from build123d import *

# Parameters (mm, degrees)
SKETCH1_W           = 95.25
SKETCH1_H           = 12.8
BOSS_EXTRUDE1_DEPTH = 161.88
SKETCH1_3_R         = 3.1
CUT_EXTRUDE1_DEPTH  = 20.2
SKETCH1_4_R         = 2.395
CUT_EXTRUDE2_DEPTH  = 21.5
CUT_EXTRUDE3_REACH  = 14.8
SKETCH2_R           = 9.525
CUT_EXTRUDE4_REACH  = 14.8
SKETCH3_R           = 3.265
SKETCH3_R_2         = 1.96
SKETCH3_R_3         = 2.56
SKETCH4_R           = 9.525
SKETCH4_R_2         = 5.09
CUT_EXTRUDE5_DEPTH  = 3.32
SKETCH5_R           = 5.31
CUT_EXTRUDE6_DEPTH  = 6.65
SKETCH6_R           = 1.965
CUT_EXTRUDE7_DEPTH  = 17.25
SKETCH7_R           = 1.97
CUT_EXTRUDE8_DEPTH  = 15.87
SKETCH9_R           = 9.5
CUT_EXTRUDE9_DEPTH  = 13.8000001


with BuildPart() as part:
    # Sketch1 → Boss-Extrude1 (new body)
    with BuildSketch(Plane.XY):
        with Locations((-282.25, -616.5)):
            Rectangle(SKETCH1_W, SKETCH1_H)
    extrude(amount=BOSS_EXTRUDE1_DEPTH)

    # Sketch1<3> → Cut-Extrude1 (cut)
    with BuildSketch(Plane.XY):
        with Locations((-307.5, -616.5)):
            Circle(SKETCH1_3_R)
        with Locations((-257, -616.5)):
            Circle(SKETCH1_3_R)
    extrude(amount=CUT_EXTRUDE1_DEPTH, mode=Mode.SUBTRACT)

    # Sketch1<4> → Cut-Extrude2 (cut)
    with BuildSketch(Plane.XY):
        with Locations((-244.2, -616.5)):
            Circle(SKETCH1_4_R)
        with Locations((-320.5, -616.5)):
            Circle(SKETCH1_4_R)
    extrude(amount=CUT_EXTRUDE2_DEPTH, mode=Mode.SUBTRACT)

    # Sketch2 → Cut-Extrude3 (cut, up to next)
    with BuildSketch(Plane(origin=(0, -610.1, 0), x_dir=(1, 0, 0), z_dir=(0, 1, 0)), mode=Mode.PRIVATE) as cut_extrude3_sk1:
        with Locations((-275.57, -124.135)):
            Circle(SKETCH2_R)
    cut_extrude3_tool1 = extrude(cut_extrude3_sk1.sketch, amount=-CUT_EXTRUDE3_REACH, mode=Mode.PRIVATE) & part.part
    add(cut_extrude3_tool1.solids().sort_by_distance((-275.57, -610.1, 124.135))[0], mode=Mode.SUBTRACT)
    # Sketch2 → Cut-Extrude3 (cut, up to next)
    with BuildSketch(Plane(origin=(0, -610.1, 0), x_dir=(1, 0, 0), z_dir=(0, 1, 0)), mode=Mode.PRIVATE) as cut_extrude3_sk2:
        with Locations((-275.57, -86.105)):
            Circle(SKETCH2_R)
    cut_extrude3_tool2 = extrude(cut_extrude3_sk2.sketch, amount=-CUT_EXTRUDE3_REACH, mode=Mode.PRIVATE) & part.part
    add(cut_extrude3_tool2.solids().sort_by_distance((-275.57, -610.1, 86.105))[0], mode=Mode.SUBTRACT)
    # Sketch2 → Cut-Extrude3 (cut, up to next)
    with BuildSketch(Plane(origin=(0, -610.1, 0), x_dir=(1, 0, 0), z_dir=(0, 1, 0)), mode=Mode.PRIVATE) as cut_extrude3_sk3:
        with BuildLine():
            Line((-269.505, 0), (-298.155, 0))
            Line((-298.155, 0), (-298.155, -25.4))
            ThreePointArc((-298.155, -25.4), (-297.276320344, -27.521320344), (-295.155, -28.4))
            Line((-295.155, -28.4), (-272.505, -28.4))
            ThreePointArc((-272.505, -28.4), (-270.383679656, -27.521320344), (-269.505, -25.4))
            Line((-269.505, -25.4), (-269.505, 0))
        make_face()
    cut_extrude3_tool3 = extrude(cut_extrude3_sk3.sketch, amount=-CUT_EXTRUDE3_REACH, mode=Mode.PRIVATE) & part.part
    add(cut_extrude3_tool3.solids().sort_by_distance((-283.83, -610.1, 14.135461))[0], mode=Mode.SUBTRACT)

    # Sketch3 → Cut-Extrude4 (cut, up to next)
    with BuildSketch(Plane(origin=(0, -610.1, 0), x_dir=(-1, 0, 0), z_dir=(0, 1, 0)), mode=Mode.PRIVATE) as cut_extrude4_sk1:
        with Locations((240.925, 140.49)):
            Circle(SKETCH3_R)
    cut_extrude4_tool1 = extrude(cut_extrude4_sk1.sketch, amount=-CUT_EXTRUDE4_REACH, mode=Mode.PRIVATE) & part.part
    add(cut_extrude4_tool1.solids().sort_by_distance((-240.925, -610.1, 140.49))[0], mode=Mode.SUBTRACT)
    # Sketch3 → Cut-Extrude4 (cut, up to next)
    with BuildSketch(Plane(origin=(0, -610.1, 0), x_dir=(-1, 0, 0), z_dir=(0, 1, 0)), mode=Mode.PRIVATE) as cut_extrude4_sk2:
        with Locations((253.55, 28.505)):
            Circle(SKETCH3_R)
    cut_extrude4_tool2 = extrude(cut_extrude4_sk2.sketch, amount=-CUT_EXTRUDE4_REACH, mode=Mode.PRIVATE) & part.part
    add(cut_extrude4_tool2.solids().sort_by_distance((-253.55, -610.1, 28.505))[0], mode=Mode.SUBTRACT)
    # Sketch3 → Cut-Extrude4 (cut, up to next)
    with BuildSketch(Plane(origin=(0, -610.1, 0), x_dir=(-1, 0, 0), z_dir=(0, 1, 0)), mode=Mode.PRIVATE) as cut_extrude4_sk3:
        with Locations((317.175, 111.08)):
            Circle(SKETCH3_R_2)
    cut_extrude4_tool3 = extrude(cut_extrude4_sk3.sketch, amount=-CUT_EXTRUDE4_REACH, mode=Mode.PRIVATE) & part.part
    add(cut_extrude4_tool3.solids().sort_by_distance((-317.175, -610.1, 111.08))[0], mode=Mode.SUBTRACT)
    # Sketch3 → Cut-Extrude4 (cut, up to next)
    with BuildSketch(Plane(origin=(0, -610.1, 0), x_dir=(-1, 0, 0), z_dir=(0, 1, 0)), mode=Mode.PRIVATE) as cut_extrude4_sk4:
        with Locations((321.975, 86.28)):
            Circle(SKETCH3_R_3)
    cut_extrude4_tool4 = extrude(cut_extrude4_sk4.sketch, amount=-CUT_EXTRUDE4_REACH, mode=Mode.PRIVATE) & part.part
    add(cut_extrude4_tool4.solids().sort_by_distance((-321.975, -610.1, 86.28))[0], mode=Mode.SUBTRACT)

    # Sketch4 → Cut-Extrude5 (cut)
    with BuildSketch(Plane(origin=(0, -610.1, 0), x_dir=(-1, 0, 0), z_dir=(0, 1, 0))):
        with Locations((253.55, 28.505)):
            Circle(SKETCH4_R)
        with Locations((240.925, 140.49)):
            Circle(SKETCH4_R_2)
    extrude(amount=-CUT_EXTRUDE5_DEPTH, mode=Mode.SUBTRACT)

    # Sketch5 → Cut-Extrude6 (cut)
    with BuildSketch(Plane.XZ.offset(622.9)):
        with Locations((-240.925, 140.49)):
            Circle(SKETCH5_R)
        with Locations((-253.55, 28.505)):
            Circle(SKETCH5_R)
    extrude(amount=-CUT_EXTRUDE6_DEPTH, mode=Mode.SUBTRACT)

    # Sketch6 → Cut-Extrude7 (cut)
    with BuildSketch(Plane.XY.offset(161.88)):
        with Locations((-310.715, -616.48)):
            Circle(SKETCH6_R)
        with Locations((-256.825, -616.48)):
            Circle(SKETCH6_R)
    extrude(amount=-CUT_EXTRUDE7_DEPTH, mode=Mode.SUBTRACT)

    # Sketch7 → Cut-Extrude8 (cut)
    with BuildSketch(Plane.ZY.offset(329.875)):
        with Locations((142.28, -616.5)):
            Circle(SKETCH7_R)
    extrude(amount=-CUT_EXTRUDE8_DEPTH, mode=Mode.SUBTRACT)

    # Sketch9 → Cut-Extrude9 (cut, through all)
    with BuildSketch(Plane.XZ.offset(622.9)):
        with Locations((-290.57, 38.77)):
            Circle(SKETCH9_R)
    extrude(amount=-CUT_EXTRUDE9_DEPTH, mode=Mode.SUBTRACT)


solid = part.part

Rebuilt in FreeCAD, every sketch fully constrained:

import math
import FreeCAD as App
import Part
import Sketcher


def add_polygon(sketch, points):
    """Adds a closed chain of lines whose ends are joined by coincident constraints."""
    first, n = sketch.GeometryCount, len(points)
    for a, b in zip(points, points[1:] + points[:1]):
        sketch.addGeometry(Part.LineSegment(App.Vector(*a, 0), App.Vector(*b, 0)), False)
    for i in range(n):
        sketch.addConstraint(Sketcher.Constraint("Coincident", first + i, 2, first + (i + 1) % n, 1))

doc = App.newDocument("Part")
body = doc.addObject("PartDesign::Body", "Body")

# Sketch on XY plane
sketch1 = body.newObject("Sketcher::SketchObject", "Sketch")
sketch1.AttachmentSupport = (doc.getObject("XY_Plane"), [""])
sketch1.MapMode = "FlatFace"
add_polygon(sketch1, [(-330, -610), (-330, -623), (-235, -623), (-235, -610)])  # lines 0-3
sketch1.addConstraint(Sketcher.Constraint("Vertical", 0))
sketch1.addConstraint(Sketcher.Constraint("Horizontal", 1))
sketch1.addConstraint(Sketcher.Constraint("Vertical", 2))
sketch1.addConstraint(Sketcher.Constraint("Horizontal", 3))
sketch1.addConstraint(Sketcher.Constraint("DistanceY", 0, 2, 0, 1, 12.8))
sketch1.addConstraint(Sketcher.Constraint("DistanceX", 1, 1, 1, 2, 95.25))
sketch1.addConstraint(Sketcher.Constraint("DistanceY", 0, 2, -1, 1, 622.9))
sketch1.addConstraint(Sketcher.Constraint("DistanceX", 0, 2, -1, 1, 329.875))
pad1 = body.newObject("PartDesign::Pad", "Pad")
pad1.Profile = sketch1
pad1.Length = 161.88

# Sketch on XY plane
sketch2 = body.newObject("Sketcher::SketchObject", "Sketch001")
sketch2.AttachmentSupport = (doc.getObject("XY_Plane"), [""])
sketch2.MapMode = "FlatFace"
sketch2.addGeometry(Part.Circle(App.Vector(-307.5, -616.5, 0), App.Vector(0, 0, 1), 3.1), False)
sketch2.addGeometry(Part.Circle(App.Vector(-257, -616.5, 0), App.Vector(0, 0, 1), 3.1), False)
sketch2.addConstraint(Sketcher.Constraint("Equal", 0, 1))
sketch2.addConstraint(Sketcher.Constraint("Horizontal", 0, 3, 1, 3))
sketch2.addConstraint(Sketcher.Constraint("Diameter", 0, 6.2))
sketch2.addConstraint(Sketcher.Constraint("DistanceX", 1, 3, -1, 1, 257.0))
sketch2.addConstraint(Sketcher.Constraint("DistanceX", 0, 3, -1, 1, 307.5))
sketch2.addConstraint(Sketcher.Constraint("DistanceY", 0, 3, -1, 1, 616.5))
pocket1 = body.newObject("PartDesign::Pocket", "Pocket")
pocket1.Profile = sketch2
pocket1.Length = 20.2
pocket1.Reversed = True

# Sketch on XY plane
sketch3 = body.newObject("Sketcher::SketchObject", "Sketch002")
sketch3.AttachmentSupport = (doc.getObject("XY_Plane"), [""])
sketch3.MapMode = "FlatFace"
sketch3.addGeometry(Part.Circle(App.Vector(-244.2, -616.5, 0), App.Vector(0, 0, 1), 2.4), False)
sketch3.addGeometry(Part.Circle(App.Vector(-320.5, -616.5, 0), App.Vector(0, 0, 1), 2.4), False)
sketch3.addConstraint(Sketcher.Constraint("Equal", 0, 1))
sketch3.addConstraint(Sketcher.Constraint("Horizontal", 0, 3, 1, 3))
sketch3.addConstraint(Sketcher.Constraint("Diameter", 0, 4.79))
sketch3.addConstraint(Sketcher.Constraint("DistanceX", 0, 3, -1, 1, 244.2))
sketch3.addConstraint(Sketcher.Constraint("DistanceY", 0, 3, -1, 1, 616.5))
sketch3.addConstraint(Sketcher.Constraint("DistanceX", 1, 3, -1, 1, 320.5))
pocket2 = body.newObject("PartDesign::Pocket", "Pocket001")
pocket2.Profile = sketch3
pocket2.Length = 21.5
pocket2.Reversed = True

# Sketch on XZ plane
sketch4 = body.newObject("Sketcher::SketchObject", "Sketch003")
sketch4.AttachmentSupport = (doc.getObject("XZ_Plane"), [""])
sketch4.MapMode = "FlatFace"
sketch4.AttachmentOffset = App.Placement(App.Vector(0, 0, 610.1), App.Rotation())
sketch4.addGeometry(Part.Circle(App.Vector(-276, 124, 0), App.Vector(0, 0, 1), 10), False)
sketch4.addConstraint(Sketcher.Constraint("Diameter", 0, 19.05))
sketch4.addConstraint(Sketcher.Constraint("DistanceX", 0, 3, -1, 1, 275.57))
sketch4.addConstraint(Sketcher.Constraint("DistanceY", -1, 1, 0, 3, 124.135))
pocket3 = body.newObject("PartDesign::Pocket", "Pocket002")
pocket3.Profile = sketch4
pocket3.Type = "UpToFirst"
pocket3.Reversed = True

# Sketch on XZ plane
sketch5 = body.newObject("Sketcher::SketchObject", "Sketch004")
sketch5.AttachmentSupport = (doc.getObject("XZ_Plane"), [""])
sketch5.MapMode = "FlatFace"
sketch5.AttachmentOffset = App.Placement(App.Vector(0, 0, 610.1), App.Rotation())
sketch5.addGeometry(Part.Circle(App.Vector(-276, 86, 0), App.Vector(0, 0, 1), 10), False)
sketch5.addConstraint(Sketcher.Constraint("Diameter", 0, 19.05))
sketch5.addConstraint(Sketcher.Constraint("DistanceX", 0, 3, -1, 1, 275.57))
sketch5.addConstraint(Sketcher.Constraint("DistanceY", -1, 1, 0, 3, 86.105))
pocket4 = body.newObject("PartDesign::Pocket", "Pocket003")
pocket4.Profile = sketch5
pocket4.Type = "UpToFirst"
pocket4.Reversed = True

# Sketch on XZ plane
sketch6 = body.newObject("Sketcher::SketchObject", "Sketch005")
sketch6.AttachmentSupport = (doc.getObject("XZ_Plane"), [""])
sketch6.MapMode = "FlatFace"
sketch6.AttachmentOffset = App.Placement(App.Vector(0, 0, 610.1), App.Rotation())
sketch6.addGeometry(Part.LineSegment(App.Vector(-269.5, 0, 0), App.Vector(-298.2, 0, 0)), False)
sketch6.addGeometry(Part.LineSegment(App.Vector(-298.2, 0, 0), App.Vector(-298.2, 25.4, 0)), False)
sketch6.addGeometry(Part.ArcOfCircle(Part.Circle(App.Vector(-295.2, 25.4, 0), App.Vector(0, 0, 1), 3), math.radians(90), math.radians(180)), False)
sketch6.addGeometry(Part.LineSegment(App.Vector(-295.2, 28.4, 0), App.Vector(-272.5, 28.4, 0)), False)
sketch6.addGeometry(Part.ArcOfCircle(Part.Circle(App.Vector(-272.5, 25.4, 0), App.Vector(0, 0, 1), 3), math.radians(0), math.radians(90)), False)
sketch6.addGeometry(Part.LineSegment(App.Vector(-269.5, 25.4, 0), App.Vector(-269.5, 0, 0)), False)
sketch6.addConstraint(Sketcher.Constraint("Coincident", 0, 2, 1, 1))
sketch6.addConstraint(Sketcher.Constraint("Tangent", 1, 2, 2, 2))
sketch6.addConstraint(Sketcher.Constraint("Tangent", 2, 1, 3, 1))
sketch6.addConstraint(Sketcher.Constraint("Tangent", 3, 2, 4, 2))
sketch6.addConstraint(Sketcher.Constraint("Tangent", 4, 1, 5, 1))
sketch6.addConstraint(Sketcher.Constraint("Coincident", 5, 2, 0, 1))
sketch6.addConstraint(Sketcher.Constraint("Horizontal", 0))
sketch6.addConstraint(Sketcher.Constraint("Vertical", 1))
sketch6.addConstraint(Sketcher.Constraint("Horizontal", 3))
sketch6.addConstraint(Sketcher.Constraint("Vertical", 5))
sketch6.addConstraint(Sketcher.Constraint("Equal", 2, 4))
sketch6.addConstraint(Sketcher.Constraint("PointOnObject", 0, 2, -1))
sketch6.addConstraint(Sketcher.Constraint("Radius", 2, 3.0))
sketch6.addConstraint(Sketcher.Constraint("DistanceY", 1, 1, 1, 2, 25.4))
sketch6.addConstraint(Sketcher.Constraint("DistanceX", 0, 2, 0, 1, 28.65))
sketch6.addConstraint(Sketcher.Constraint("DistanceX", 2, 3, -1, 1, 295.155))
pocket5 = body.newObject("PartDesign::Pocket", "Pocket004")
pocket5.Profile = sketch6
pocket5.Type = "UpToFirst"
pocket5.Reversed = True

# Sketch on XZ plane
sketch7 = body.newObject("Sketcher::SketchObject", "Sketch006")
sketch7.AttachmentSupport = (doc.getObject("XZ_Plane"), [""])
sketch7.MapMode = "FlatFace"
sketch7.AttachmentOffset = App.Placement(App.Vector(0, 0, 610.1), App.Rotation())
sketch7.addGeometry(Part.Circle(App.Vector(-240.9, 140.5, 0), App.Vector(0, 0, 1), 3.3), False)
sketch7.addConstraint(Sketcher.Constraint("Diameter", 0, 6.53))
sketch7.addConstraint(Sketcher.Constraint("DistanceY", -1, 1, 0, 3, 140.49))
sketch7.addConstraint(Sketcher.Constraint("DistanceX", 0, 3, -1, 1, 240.925))
pocket6 = body.newObject("PartDesign::Pocket", "Pocket005")
pocket6.Profile = sketch7
pocket6.Type = "UpToFirst"
pocket6.Reversed = True

# Sketch on XZ plane
sketch8 = body.newObject("Sketcher::SketchObject", "Sketch007")
sketch8.AttachmentSupport = (doc.getObject("XZ_Plane"), [""])
sketch8.MapMode = "FlatFace"
sketch8.AttachmentOffset = App.Placement(App.Vector(0, 0, 610.1), App.Rotation())
sketch8.addGeometry(Part.Circle(App.Vector(-253.6, 28.5, 0), App.Vector(0, 0, 1), 3.3), False)
sketch8.addConstraint(Sketcher.Constraint("Diameter", 0, 6.53))
sketch8.addConstraint(Sketcher.Constraint("DistanceX", 0, 3, -1, 1, 253.55))
sketch8.addConstraint(Sketcher.Constraint("DistanceY", -1, 1, 0, 3, 28.505))
pocket7 = body.newObject("PartDesign::Pocket", "Pocket006")
pocket7.Profile = sketch8
pocket7.Type = "UpToFirst"
pocket7.Reversed = True

# Sketch on XZ plane
sketch9 = body.newObject("Sketcher::SketchObject", "Sketch008")
sketch9.AttachmentSupport = (doc.getObject("XZ_Plane"), [""])
sketch9.MapMode = "FlatFace"
sketch9.AttachmentOffset = App.Placement(App.Vector(0, 0, 610.1), App.Rotation())
sketch9.addGeometry(Part.Circle(App.Vector(-317.2, 111.1, 0), App.Vector(0, 0, 1), 2), False)
sketch9.addConstraint(Sketcher.Constraint("Diameter", 0, 3.92))
sketch9.addConstraint(Sketcher.Constraint("DistanceY", -1, 1, 0, 3, 111.08))
sketch9.addConstraint(Sketcher.Constraint("DistanceX", 0, 3, -1, 1, 317.175))
pocket8 = body.newObject("PartDesign::Pocket", "Pocket007")
pocket8.Profile = sketch9
pocket8.Type = "UpToFirst"
pocket8.Reversed = True

# Sketch on XZ plane
sketch10 = body.newObject("Sketcher::SketchObject", "Sketch009")
sketch10.AttachmentSupport = (doc.getObject("XZ_Plane"), [""])
sketch10.MapMode = "FlatFace"
sketch10.AttachmentOffset = App.Placement(App.Vector(0, 0, 610.1), App.Rotation())
sketch10.addGeometry(Part.Circle(App.Vector(-322, 86.3, 0), App.Vector(0, 0, 1), 2.6), False)
sketch10.addConstraint(Sketcher.Constraint("Diameter", 0, 5.12))
sketch10.addConstraint(Sketcher.Constraint("DistanceY", -1, 1, 0, 3, 86.28))
sketch10.addConstraint(Sketcher.Constraint("DistanceX", 0, 3, -1, 1, 321.975))
pocket9 = body.newObject("PartDesign::Pocket", "Pocket008")
pocket9.Profile = sketch10
pocket9.Type = "UpToFirst"
pocket9.Reversed = True

# Sketch on XZ plane
sketch11 = body.newObject("Sketcher::SketchObject", "Sketch010")
sketch11.AttachmentSupport = (doc.getObject("XZ_Plane"), [""])
sketch11.MapMode = "FlatFace"
sketch11.AttachmentOffset = App.Placement(App.Vector(0, 0, 610.1), App.Rotation())
sketch11.addGeometry(Part.Circle(App.Vector(-254, 29, 0), App.Vector(0, 0, 1), 10), False)
sketch11.addGeometry(Part.Circle(App.Vector(-241, 140, 0), App.Vector(0, 0, 1), 5), False)
sketch11.addConstraint(Sketcher.Constraint("Diameter", 0, 19.05))
sketch11.addConstraint(Sketcher.Constraint("Diameter", 1, 10.18))
sketch11.addConstraint(Sketcher.Constraint("DistanceX", 0, 3, -1, 1, 253.55))
sketch11.addConstraint(Sketcher.Constraint("DistanceY", -1, 1, 1, 3, 140.49))
sketch11.addConstraint(Sketcher.Constraint("DistanceY", -1, 1, 0, 3, 28.505))
sketch11.addConstraint(Sketcher.Constraint("DistanceX", 1, 3, -1, 1, 240.925))
pocket10 = body.newObject("PartDesign::Pocket", "Pocket009")
pocket10.Profile = sketch11
pocket10.Length = 3.32
pocket10.Reversed = True

# Sketch on XZ plane
sketch12 = body.newObject("Sketcher::SketchObject", "Sketch011")
sketch12.AttachmentSupport = (doc.getObject("XZ_Plane"), [""])
sketch12.MapMode = "FlatFace"
sketch12.AttachmentOffset = App.Placement(App.Vector(0, 0, 622.9), App.Rotation())
sketch12.addGeometry(Part.Circle(App.Vector(-241, 140, 0), App.Vector(0, 0, 1), 5), False)
sketch12.addGeometry(Part.Circle(App.Vector(-254, 29, 0), App.Vector(0, 0, 1), 5), False)
sketch12.addConstraint(Sketcher.Constraint("Equal", 0, 1))
sketch12.addConstraint(Sketcher.Constraint("Diameter", 0, 10.62))
sketch12.addConstraint(Sketcher.Constraint("DistanceY", -1, 1, 0, 3, 140.49))
sketch12.addConstraint(Sketcher.Constraint("DistanceX", 1, 3, -1, 1, 253.55))
sketch12.addConstraint(Sketcher.Constraint("DistanceX", 0, 3, -1, 1, 240.925))
sketch12.addConstraint(Sketcher.Constraint("DistanceY", -1, 1, 1, 3, 28.505))
pocket11 = body.newObject("PartDesign::Pocket", "Pocket010")
pocket11.Profile = sketch12
pocket11.Length = 6.65

# Sketch on XY plane
sketch13 = body.newObject("Sketcher::SketchObject", "Sketch012")
sketch13.AttachmentSupport = (doc.getObject("XY_Plane"), [""])
sketch13.MapMode = "FlatFace"
sketch13.AttachmentOffset = App.Placement(App.Vector(0, 0, 161.88), App.Rotation())
sketch13.addGeometry(Part.Circle(App.Vector(-310.7, -616.5, 0), App.Vector(0, 0, 1), 2), False)
sketch13.addGeometry(Part.Circle(App.Vector(-256.8, -616.5, 0), App.Vector(0, 0, 1), 2), False)
sketch13.addConstraint(Sketcher.Constraint("Equal", 0, 1))
sketch13.addConstraint(Sketcher.Constraint("Horizontal", 0, 3, 1, 3))
sketch13.addConstraint(Sketcher.Constraint("Diameter", 0, 3.93))
sketch13.addConstraint(Sketcher.Constraint("DistanceY", 0, 3, -1, 1, 616.48))
sketch13.addConstraint(Sketcher.Constraint("DistanceX", 0, 3, 1, 3, 53.89))
sketch13.addConstraint(Sketcher.Constraint("DistanceX", 0, 3, -1, 1, 310.715))
pocket12 = body.newObject("PartDesign::Pocket", "Pocket011")
pocket12.Profile = sketch13
pocket12.Length = 17.25

# Sketch on YZ plane
sketch14 = body.newObject("Sketcher::SketchObject", "Sketch013")
sketch14.AttachmentSupport = (doc.getObject("YZ_Plane"), [""])
sketch14.MapMode = "FlatFace"
sketch14.AttachmentOffset = App.Placement(App.Vector(0, 0, -329.875), App.Rotation())
sketch14.addGeometry(Part.Circle(App.Vector(-616.5, 142.3, 0), App.Vector(0, 0, 1), 2), False)
sketch14.addConstraint(Sketcher.Constraint("Diameter", 0, 3.94))
sketch14.addConstraint(Sketcher.Constraint("DistanceX", 0, 3, -1, 1, 616.5))
sketch14.addConstraint(Sketcher.Constraint("DistanceY", -1, 1, 0, 3, 142.28))
pocket13 = body.newObject("PartDesign::Pocket", "Pocket012")
pocket13.Profile = sketch14
pocket13.Length = 15.87
pocket13.Reversed = True

# Sketch on XZ plane
sketch15 = body.newObject("Sketcher::SketchObject", "Sketch014")
sketch15.AttachmentSupport = (doc.getObject("XZ_Plane"), [""])
sketch15.MapMode = "FlatFace"
sketch15.AttachmentOffset = App.Placement(App.Vector(0, 0, 622.9), App.Rotation())
sketch15.addGeometry(Part.Circle(App.Vector(-291, 39, 0), App.Vector(0, 0, 1), 10), False)
sketch15.addConstraint(Sketcher.Constraint("Diameter", 0, 19.0))
sketch15.addConstraint(Sketcher.Constraint("DistanceX", 0, 3, -1, 1, 290.57))
sketch15.addConstraint(Sketcher.Constraint("DistanceY", -1, 1, 0, 3, 38.77))
pocket14 = body.newObject("PartDesign::Pocket", "Pocket013")
pocket14.Profile = sketch15
pocket14.Type = "ThroughAll"

doc.recompute()
